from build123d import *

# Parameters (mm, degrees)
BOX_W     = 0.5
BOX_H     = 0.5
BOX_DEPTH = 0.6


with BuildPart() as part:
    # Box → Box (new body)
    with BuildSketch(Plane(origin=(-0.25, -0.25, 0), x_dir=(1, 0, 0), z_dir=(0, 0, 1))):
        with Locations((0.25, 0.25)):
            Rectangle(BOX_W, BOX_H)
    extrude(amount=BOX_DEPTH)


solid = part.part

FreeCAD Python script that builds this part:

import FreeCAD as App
import Part
import Sketcher

doc = App.newDocument("Part")
body = doc.addObject("PartDesign::Body", "Body")

sketch1 = body.newObject("Sketcher::SketchObject", "Sketch")
sketch1.AttachmentSupport = (doc.getObject("XY_Plane"), [""])
sketch1.MapMode = "FlatFace"
sketch1.addGeometry([
    Part.LineSegment(App.Vector(-0.2, 0.2, 0), App.Vector(-0.2, -0.2, 0)),
    Part.LineSegment(App.Vector(-0.2, -0.2, 0), App.Vector(0.2, -0.2, 0)),
    Part.LineSegment(App.Vector(0.2, -0.2, 0), App.Vector(0.2, 0.2, 0)),
    Part.LineSegment(App.Vector(0.2, 0.2, 0), App.Vector(-0.2, 0.2, 0)),
], False)
sketch1.addConstraint([
    Sketcher.Constraint("Coincident", 0, 2, 1, 1),
    Sketcher.Constraint("Coincident", 1, 2, 2, 1),
    Sketcher.Constraint("Coincident", 2, 2, 3, 1),
    Sketcher.Constraint("Coincident", 3, 2, 0, 1),
    Sketcher.Constraint("Vertical", 0),
    Sketcher.Constraint("Horizontal", 1),
    Sketcher.Constraint("Vertical", 2),
    Sketcher.Constraint("Horizontal", 3),
    Sketcher.Constraint("Symmetric", 0, 2, 2, 2, -1, 1),
    Sketcher.Constraint("Equal", 3, 0),
    Sketcher.Constraint("DistanceX", 1, 1, 1, 2, 0.5),
])
pad1 = body.newObject("PartDesign::Pad", "Pad")
pad1.Profile = sketch1
pad1.Length = 0.6

doc.recompute()
